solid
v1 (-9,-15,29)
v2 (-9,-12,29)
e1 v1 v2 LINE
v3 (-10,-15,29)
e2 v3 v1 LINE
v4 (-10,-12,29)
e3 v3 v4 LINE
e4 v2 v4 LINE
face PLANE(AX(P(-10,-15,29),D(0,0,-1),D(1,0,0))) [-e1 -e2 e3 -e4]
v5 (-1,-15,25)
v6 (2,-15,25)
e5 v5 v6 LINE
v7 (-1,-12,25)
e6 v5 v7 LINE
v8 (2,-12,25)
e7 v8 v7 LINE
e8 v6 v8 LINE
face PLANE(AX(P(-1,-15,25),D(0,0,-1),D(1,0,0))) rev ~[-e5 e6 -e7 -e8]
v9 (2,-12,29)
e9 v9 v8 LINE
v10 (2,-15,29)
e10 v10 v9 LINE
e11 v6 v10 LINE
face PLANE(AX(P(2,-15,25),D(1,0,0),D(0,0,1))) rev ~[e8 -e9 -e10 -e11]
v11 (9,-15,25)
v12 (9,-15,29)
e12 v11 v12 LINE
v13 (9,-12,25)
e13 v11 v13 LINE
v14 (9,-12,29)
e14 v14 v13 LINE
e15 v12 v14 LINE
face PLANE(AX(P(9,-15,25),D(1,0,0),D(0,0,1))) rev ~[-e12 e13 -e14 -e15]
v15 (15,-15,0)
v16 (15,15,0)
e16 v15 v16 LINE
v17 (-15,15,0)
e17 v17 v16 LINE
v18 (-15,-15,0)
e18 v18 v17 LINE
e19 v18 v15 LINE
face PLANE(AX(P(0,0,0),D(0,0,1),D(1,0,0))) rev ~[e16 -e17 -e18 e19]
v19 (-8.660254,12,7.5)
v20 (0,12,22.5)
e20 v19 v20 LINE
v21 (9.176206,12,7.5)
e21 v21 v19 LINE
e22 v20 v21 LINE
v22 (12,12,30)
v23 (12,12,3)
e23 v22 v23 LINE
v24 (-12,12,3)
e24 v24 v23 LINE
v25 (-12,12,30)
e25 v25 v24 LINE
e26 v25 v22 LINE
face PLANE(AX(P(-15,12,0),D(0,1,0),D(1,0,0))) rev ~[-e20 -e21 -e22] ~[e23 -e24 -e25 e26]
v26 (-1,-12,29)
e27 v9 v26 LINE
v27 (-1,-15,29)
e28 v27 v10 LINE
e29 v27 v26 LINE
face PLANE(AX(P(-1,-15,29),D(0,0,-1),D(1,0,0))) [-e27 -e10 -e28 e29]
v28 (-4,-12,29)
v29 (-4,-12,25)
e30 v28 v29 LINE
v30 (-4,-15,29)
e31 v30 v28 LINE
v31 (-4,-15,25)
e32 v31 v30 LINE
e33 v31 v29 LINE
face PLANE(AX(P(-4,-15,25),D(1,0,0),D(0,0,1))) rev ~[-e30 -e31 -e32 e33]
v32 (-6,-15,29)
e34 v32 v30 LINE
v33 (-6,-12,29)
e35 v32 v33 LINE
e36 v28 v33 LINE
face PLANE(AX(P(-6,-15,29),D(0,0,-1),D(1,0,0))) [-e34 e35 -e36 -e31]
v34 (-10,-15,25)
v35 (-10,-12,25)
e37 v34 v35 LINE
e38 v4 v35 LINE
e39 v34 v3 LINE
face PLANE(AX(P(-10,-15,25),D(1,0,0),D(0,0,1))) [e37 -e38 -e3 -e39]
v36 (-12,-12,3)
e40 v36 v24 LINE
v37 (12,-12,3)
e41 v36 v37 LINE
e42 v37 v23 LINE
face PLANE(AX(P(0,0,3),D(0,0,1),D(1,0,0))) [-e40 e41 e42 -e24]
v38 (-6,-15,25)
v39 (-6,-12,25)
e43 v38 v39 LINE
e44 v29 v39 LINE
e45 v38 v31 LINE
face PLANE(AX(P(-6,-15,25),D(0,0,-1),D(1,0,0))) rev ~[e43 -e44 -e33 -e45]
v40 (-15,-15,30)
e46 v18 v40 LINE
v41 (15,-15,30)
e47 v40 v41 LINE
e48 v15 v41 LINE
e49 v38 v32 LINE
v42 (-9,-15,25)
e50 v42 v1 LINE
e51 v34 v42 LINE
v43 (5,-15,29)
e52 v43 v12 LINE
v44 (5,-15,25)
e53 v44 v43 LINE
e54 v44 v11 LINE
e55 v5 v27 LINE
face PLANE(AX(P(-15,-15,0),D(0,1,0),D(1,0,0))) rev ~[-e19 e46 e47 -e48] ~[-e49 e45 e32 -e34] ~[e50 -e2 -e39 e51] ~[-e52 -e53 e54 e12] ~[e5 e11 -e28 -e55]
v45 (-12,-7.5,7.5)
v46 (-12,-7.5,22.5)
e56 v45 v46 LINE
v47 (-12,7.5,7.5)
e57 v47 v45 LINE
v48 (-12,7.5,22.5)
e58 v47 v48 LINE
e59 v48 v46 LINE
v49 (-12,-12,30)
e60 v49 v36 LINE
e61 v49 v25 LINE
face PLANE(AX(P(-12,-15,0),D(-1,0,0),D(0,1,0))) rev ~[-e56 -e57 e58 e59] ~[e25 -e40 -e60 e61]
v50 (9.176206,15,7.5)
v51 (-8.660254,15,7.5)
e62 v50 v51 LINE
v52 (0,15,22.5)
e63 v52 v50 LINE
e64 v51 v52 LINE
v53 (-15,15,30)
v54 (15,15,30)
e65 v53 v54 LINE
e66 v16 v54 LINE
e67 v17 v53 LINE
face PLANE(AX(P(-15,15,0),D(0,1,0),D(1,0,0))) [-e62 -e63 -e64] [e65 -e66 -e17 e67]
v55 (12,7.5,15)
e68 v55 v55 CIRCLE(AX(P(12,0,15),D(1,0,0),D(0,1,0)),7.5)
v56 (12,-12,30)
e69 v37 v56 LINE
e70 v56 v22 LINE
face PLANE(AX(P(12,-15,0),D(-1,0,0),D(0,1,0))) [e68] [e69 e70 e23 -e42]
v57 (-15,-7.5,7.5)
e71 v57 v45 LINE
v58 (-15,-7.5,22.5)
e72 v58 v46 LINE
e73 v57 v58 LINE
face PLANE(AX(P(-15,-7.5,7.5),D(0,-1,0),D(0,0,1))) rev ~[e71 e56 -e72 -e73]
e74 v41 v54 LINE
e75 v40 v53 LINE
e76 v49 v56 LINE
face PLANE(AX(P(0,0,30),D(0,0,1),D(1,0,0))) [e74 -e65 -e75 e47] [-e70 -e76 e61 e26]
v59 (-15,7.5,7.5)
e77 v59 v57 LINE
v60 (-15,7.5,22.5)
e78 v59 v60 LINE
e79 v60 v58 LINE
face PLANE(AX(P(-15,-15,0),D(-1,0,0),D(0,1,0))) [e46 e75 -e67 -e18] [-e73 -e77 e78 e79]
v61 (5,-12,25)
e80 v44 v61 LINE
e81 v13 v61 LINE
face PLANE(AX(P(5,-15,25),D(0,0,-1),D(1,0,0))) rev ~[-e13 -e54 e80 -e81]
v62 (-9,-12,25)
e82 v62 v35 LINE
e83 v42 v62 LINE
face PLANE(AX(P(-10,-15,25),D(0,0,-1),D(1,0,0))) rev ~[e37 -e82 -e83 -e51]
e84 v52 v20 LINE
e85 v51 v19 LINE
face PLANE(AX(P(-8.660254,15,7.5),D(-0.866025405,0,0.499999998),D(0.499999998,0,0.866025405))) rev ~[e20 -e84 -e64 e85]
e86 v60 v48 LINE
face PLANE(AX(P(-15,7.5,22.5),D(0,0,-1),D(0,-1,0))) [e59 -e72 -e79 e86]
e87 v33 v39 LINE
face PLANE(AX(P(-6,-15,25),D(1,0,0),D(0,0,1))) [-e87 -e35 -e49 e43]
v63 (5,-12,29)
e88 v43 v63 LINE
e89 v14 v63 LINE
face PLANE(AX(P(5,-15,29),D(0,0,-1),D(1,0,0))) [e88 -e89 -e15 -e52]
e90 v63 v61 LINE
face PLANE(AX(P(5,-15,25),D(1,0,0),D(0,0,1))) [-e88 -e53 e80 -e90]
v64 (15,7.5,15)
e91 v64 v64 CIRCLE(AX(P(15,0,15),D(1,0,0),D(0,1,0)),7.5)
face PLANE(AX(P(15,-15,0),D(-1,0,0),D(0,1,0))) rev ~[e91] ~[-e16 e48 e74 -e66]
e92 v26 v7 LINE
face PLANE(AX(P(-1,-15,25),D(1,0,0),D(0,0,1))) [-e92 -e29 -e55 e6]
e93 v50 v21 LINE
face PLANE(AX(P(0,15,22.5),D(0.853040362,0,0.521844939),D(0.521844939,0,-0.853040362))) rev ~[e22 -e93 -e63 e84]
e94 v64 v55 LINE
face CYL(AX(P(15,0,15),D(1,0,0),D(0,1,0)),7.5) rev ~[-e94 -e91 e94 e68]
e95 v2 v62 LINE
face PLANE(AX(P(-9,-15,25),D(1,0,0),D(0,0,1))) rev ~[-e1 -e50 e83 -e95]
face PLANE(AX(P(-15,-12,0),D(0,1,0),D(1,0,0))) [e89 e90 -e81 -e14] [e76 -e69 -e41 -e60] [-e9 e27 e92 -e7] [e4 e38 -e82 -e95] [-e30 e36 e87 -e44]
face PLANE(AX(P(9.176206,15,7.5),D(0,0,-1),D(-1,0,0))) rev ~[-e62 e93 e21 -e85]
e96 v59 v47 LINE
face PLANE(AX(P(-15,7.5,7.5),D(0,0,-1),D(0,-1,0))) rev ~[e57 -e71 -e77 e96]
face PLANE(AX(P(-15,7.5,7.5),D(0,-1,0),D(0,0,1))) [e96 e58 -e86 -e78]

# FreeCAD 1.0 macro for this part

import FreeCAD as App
import Part
import Sketcher
Q = App.Units.Quantity


def faces_at(feature, points):
    """Names of the faces that lie closest to the given points."""
    faces = feature.Shape.Faces
    near = lambda p: min(range(len(faces)), key=lambda i: faces[i].distToShape(Part.Vertex(*p))[0])
    return sorted({f"Face{near(p) + 1}" for p in points})

doc = App.newDocument("Part")
params = doc.addObject("Spreadsheet::Sheet", "Params")
for row, (alias, value) in enumerate([
    ("sketch1_width", "30 mm"),
    ("pad1_length", "30 mm"),
    ("thickness_wall", "3 mm"),
    ("sketch2_width", "15 mm"),
    ("pocket1_length", "3 mm"),
    ("sketch3_diameter", "15 mm"),
    ("pocket3_length", "3 mm"),
    ("sketch5_width", "1 mm"),
    ("sketch5_width2", "2 mm"),
    ("sketch5_width3", "3 mm"),
    ("sketch5_width4", "4 mm"),
    ("pocket4_length", "4 mm"),
], start=1):
    params.set(f"A{row}", alias)
    params.set(f"B{row}", "=" + value)
    params.setAlias(f"B{row}", alias)

body = doc.addObject("PartDesign::Body", "Body")

sketch1 = doc.addObject("Sketcher::SketchObject", "Sketch")
body.addObject(sketch1)
sketch1.AttachmentSupport = (doc.XY_Plane, [""])
sketch1.MapMode = "FlatFace"
sketch1.addGeometry([
    Part.LineSegment(App.Vector(-15, 15, 0), App.Vector(-15, -15, 0)),
    Part.LineSegment(App.Vector(-15, -15, 0), App.Vector(15, -15, 0)),
    Part.LineSegment(App.Vector(15, -15, 0), App.Vector(15, 15, 0)),
    Part.LineSegment(App.Vector(15, 15, 0), App.Vector(-15, 15, 0)),
], False)
sketch1.addConstraint([
    Sketcher.Constraint("Coincident", 0, 2, 1, 1),
    Sketcher.Constraint("Coincident", 1, 2, 2, 1),
    Sketcher.Constraint("Coincident", 2, 2, 3, 1),
    Sketcher.Constraint("Coincident", 3, 2, 0, 1),
    Sketcher.Constraint("Vertical", 0),
    Sketcher.Constraint("Horizontal", 1),
    Sketcher.Constraint("Vertical", 2),
    Sketcher.Constraint("Horizontal", 3),
    Sketcher.Constraint("Symmetric", 0, 2, 2, 2, -1, 1),
    Sketcher.Constraint("Equal", 3, 0),
    Sketcher.Constraint("DistanceX", 1, 1, 1, 2, Q("30 mm")),
])
sketch1.setExpression("Constraints[10]", "Params.sketch1_width")
pad1 = doc.addObject("PartDesign::Pad", "Pad")
body.addObject(pad1)
pad1.Profile = sketch1
pad1.setExpression("Length", "Params.pad1_length")
doc.recompute()

thickness = doc.addObject("PartDesign::Thickness", "Thickness")
body.addObject(thickness)
thickness.Base = (pad1, faces_at(pad1, [(0, 0, 30)]))
thickness.setExpression("Value", "Params.thickness_wall")
thickness.Reversed = True
thickness.Join = "Arc"

sketch2 = doc.addObject("Sketcher::SketchObject", "Sketch001")
body.addObject(sketch2)
sketch2.AttachmentSupport = (doc.YZ_Plane, [""])
sketch2.MapMode = "FlatFace"
sketch2.AttachmentOffset = App.Placement(App.Vector(0, 0, -15), App.Rotation())
sketch2.addGeometry([
    Part.LineSegment(App.Vector(7.5, 22.5, 0), App.Vector(7.5, 7.5, 0)),
    Part.LineSegment(App.Vector(7.5, 7.5, 0), App.Vector(-7.5, 7.5, 0)),
    Part.LineSegment(App.Vector(-7.5, 7.5, 0), App.Vector(-7.5, 22.5, 0)),
    Part.LineSegment(App.Vector(-7.5, 22.5, 0), App.Vector(7.5, 22.5, 0)),
], False)
sketch2.addConstraint([
    Sketcher.Constraint("Coincident", 0, 2, 1, 1),
    Sketcher.Constraint("Coincident", 1, 2, 2, 1),
    Sketcher.Constraint("Coincident", 2, 2, 3, 1),
    Sketcher.Constraint("Coincident", 3, 2, 0, 1),
    Sketcher.Constraint("Vertical", 0),
    Sketcher.Constraint("Horizontal", 1),
    Sketcher.Constraint("Vertical", 2),
    Sketcher.Constraint("Horizontal", 3),
    Sketcher.Constraint("Equal", 3, 0),
    Sketcher.Constraint("DistanceX", 1, 2, 1, 1, Q("15 mm")),
    Sketcher.Constraint("DistanceX", -1, 1, 0, 2, Q("7.5 mm")),
    Sketcher.Constraint("DistanceY", -1, 1, 0, 2, Q("7.5 mm")),
])
sketch2.setExpression("Constraints[9]", "Params.sketch2_width")
pocket1 = doc.addObject("PartDesign::Pocket", "Pocket")
body.addObject(pocket1)
pocket1.Profile = sketch2
pocket1.setExpression("Length", "Params.pocket1_length")
pocket1.Reversed = True

sketch3 = doc.addObject("Sketcher::SketchObject", "Sketch002")
body.addObject(sketch3)
sketch3.AttachmentSupport = (doc.YZ_Plane, [""])
sketch3.MapMode = "FlatFace"
sketch3.AttachmentOffset = App.Placement(App.Vector(0, 0, 15), App.Rotation())
sketch3.addGeometry(Part.Circle(App.Vector(0, 15, 0), App.Vector(0, 0, 1), 7.5), False)
sketch3.addConstraint([
    Sketcher.Constraint("PointOnObject", 0, 3, -2),
    Sketcher.Constraint("Diameter", 0, Q("15 mm")),
    Sketcher.Constraint("DistanceY", -1, 1, 0, 3, Q("15 mm")),
])
sketch3.setExpression("Constraints[1]", "Params.sketch3_diameter")
pocket2 = doc.addObject("PartDesign::Pocket", "Pocket001")
body.addObject(pocket2)
pocket2.Profile = sketch3
pocket2.Type = "ThroughAll"

sketch4 = doc.addObject("Sketcher::SketchObject", "Sketch003")
body.addObject(sketch4)
sketch4.AttachmentSupport = (doc.XZ_Plane, [""])
sketch4.MapMode = "FlatFace"
sketch4.AttachmentOffset = App.Placement(App.Vector(0, 0, -15), App.Rotation())
sketch4.addGeometry([
    Part.LineSegment(App.Vector(-8.660254, 7.5, 0), App.Vector(0, 22.5, 0)),
    Part.LineSegment(App.Vector(0, 22.5, 0), App.Vector(9.176206, 7.5, 0)),
    Part.LineSegment(App.Vector(9.176206, 7.5, 0), App.Vector(-8.660254, 7.5, 0)),
], False)
sketch4.addConstraint([
    Sketcher.Constraint("Coincident", 0, 2, 1, 1),
    Sketcher.Constraint("Coincident", 1, 2, 2, 1),
    Sketcher.Constraint("Coincident", 2, 2, 0, 1),
    Sketcher.Constraint("Horizontal", 2),
    Sketcher.Constraint("PointOnObject", 0, 2, -2),
    Sketcher.Constraint("Angle", 0, Q("60 deg")),
    Sketcher.Constraint("DistanceY", 1, 2, 0, 2, Q("15 mm")),
    Sketcher.Constraint("DistanceY", -1, 1, 0, 2, Q("22.5 mm")),
    Sketcher.Constraint("DistanceX", 2, 2, 2, 1, Q("17.83646 mm")),
])
pocket3 = doc.addObject("PartDesign::Pocket", "Pocket002")
body.addObject(pocket3)
pocket3.Profile = sketch4
pocket3.setExpression("Length", "Params.pocket3_length")
pocket3.Reversed = True

sketch5 = doc.addObject("Sketcher::SketchObject", "Sketch004")
body.addObject(sketch5)
sketch5.AttachmentSupport = (doc.XZ_Plane, [""])
sketch5.MapMode = "FlatFace"
sketch5.AttachmentOffset = App.Placement(App.Vector(0, 0, 15), App.Rotation())
sketch5.addGeometry([
    Part.LineSegment(App.Vector(-10, 29, 0), App.Vector(-10, 25, 0)),
    Part.LineSegment(App.Vector(-10, 25, 0), App.Vector(-9, 25, 0)),
    Part.LineSegment(App.Vector(-9, 25, 0), App.Vector(-9, 29, 0)),
    Part.LineSegment(App.Vector(-9, 29, 0), App.Vector(-10, 29, 0)),
    Part.LineSegment(App.Vector(-6, 29, 0), App.Vector(-6, 25, 0)),
    Part.LineSegment(App.Vector(-6, 25, 0), App.Vector(-4, 25, 0)),
    Part.LineSegment(App.Vector(-4, 25, 0), App.Vector(-4, 29, 0)),
    Part.LineSegment(App.Vector(-4, 29, 0), App.Vector(-6, 29, 0)),
    Part.LineSegment(App.Vector(-1, 29, 0), App.Vector(-1, 25, 0)),
    Part.LineSegment(App.Vector(-1, 25, 0), App.Vector(2, 25, 0)),
    Part.LineSegment(App.Vector(2, 25, 0), App.Vector(2, 29, 0)),
    Part.LineSegment(App.Vector(2, 29, 0), App.Vector(-1, 29, 0)),
    Part.LineSegment(App.Vector(5, 29, 0), App.Vector(5, 25, 0)),
    Part.LineSegment(App.Vector(5, 25, 0), App.Vector(9, 25, 0)),
    Part.LineSegment(App.Vector(9, 25, 0), App.Vector(9, 29, 0)),
    Part.LineSegment(App.Vector(9, 29, 0), App.Vector(5, 29, 0)),
], False)
sketch5.addConstraint([
    Sketcher.Constraint("Coincident", 0, 2, 1, 1),
    Sketcher.Constraint("Coincident", 1, 2, 2, 1),
    Sketcher.Constraint("Coincident", 2, 2, 3, 1),
    Sketcher.Constraint("Coincident", 3, 2, 0, 1),
    Sketcher.Constraint("Coincident", 4, 2, 5, 1),
    Sketcher.Constraint("Coincident", 5, 2, 6, 1),
    Sketcher.Constraint("Coincident", 6, 2, 7, 1),
    Sketcher.Constraint("Coincident", 7, 2, 4, 1),
    Sketcher.Constraint("Coincident", 8, 2, 9, 1),
    Sketcher.Constraint("Coincident", 9, 2, 10, 1),
    Sketcher.Constraint("Coincident", 10, 2, 11, 1),
    Sketcher.Constraint("Coincident", 11, 2, 8, 1),
    Sketcher.Constraint("Coincident", 12, 2, 13, 1),
    Sketcher.Constraint("Coincident", 13, 2, 14, 1),
    Sketcher.Constraint("Coincident", 14, 2, 15, 1),
    Sketcher.Constraint("Coincident", 15, 2, 12, 1),
    Sketcher.Constraint("Vertical", 0),
    Sketcher.Constraint("Horizontal", 1),
    Sketcher.Constraint("Vertical", 2),
    Sketcher.Constraint("Horizontal", 3),
    Sketcher.Constraint("Vertical", 4),
    Sketcher.Constraint("Horizontal", 5),
    Sketcher.Constraint("Vertical", 6),
    Sketcher.Constraint("Horizontal", 7),
    Sketcher.Constraint("Vertical", 8),
    Sketcher.Constraint("Horizontal", 9),
    Sketcher.Constraint("Vertical", 10),
    Sketcher.Constraint("Horizontal", 11),
    Sketcher.Constraint("Vertical", 12),
    Sketcher.Constraint("Horizontal", 13),
    Sketcher.Constraint("Vertical", 14),
    Sketcher.Constraint("Horizontal", 15),
    Sketcher.Constraint("Symmetric", 1, 2, 13, 2, -2),
    Sketcher.Constraint("Horizontal", 1, 2, 4, 2),
    Sketcher.Constraint("Horizontal", 3, 2, 6, 2),
    Sketcher.Constraint("Horizontal", 5, 2, 8, 2),
    Sketcher.Constraint("Horizontal", 7, 2, 10, 2),
    Sketcher.Constraint("Horizontal", 11, 2, 14, 2),
    Sketcher.Constraint("Equal", 15, 0),
    Sketcher.Constraint("DistanceX", 1, 1, 1, 2, Q("1 mm")),
    Sketcher.Constraint("DistanceX", 5, 1, 5, 2, Q("2 mm")),
    Sketcher.Constraint("DistanceX", 9, 1, 9, 2, Q("3 mm")),
    Sketcher.Constraint("DistanceX", 13, 1, 13, 2, Q("4 mm")),
    Sketcher.Constraint("DistanceX", 0, 2, -1, 1, Q("10 mm")),
    Sketcher.Constraint("DistanceY", -1, 1, 0, 2, Q("25 mm")),
    Sketcher.Constraint("DistanceX", 4, 2, -1, 1, Q("6 mm")),
    Sketcher.Constraint("DistanceX", 8, 2, -1, 1, Q("1 mm")),
])
sketch5.setExpression("Constraints[39]", "Params.sketch5_width")
sketch5.setExpression("Constraints[40]", "Params.sketch5_width2")
sketch5.setExpression("Constraints[41]", "Params.sketch5_width3")
sketch5.setExpression("Constraints[42]", "Params.sketch5_width4")
pocket4 = doc.addObject("PartDesign::Pocket", "Pocket003")
body.addObject(pocket4)
pocket4.Profile = sketch5
pocket4.setExpression("Length", "Params.pocket4_length")

doc.recompute()
